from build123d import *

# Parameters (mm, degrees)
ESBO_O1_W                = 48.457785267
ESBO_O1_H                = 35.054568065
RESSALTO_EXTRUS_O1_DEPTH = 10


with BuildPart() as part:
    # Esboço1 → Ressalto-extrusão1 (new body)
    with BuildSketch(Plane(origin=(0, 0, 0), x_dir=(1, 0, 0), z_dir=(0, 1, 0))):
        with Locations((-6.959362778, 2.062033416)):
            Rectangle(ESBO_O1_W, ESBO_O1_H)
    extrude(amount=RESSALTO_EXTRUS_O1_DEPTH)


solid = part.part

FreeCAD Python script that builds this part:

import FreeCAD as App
import Part
import Sketcher

doc = App.newDocument("Part")
body = doc.addObject("PartDesign::Body", "Body")

# Sketch on XZ plane
sketch1 = body.newObject("Sketcher::SketchObject", "Sketch")
sketch1.AttachmentSupport = (doc.getObject("XZ_Plane"), [""])
sketch1.MapMode = "FlatFace"
sketch1.addGeometry(Part.LineSegment(App.Vector(-31, -20, 0), App.Vector(-31, 15, 0)), False)
sketch1.addGeometry(Part.LineSegment(App.Vector(-31, 15, 0), App.Vector(17, 15, 0)), False)
sketch1.addGeometry(Part.LineSegment(App.Vector(17, 15, 0), App.Vector(17, -20, 0)), False)
sketch1.addGeometry(Part.LineSegment(App.Vector(17, -20, 0), App.Vector(-31, -20, 0)), False)
sketch1.addConstraint(Sketcher.Constraint("Coincident", 0, 2, 1, 1))
sketch1.addConstraint(Sketcher.Constraint("Coincident", 1, 2, 2, 1))
sketch1.addConstraint(Sketcher.Constraint("Coincident", 2, 2, 3, 1))
sketch1.addConstraint(Sketcher.Constraint("Coincident", 3, 2, 0, 1))
sketch1.addConstraint(Sketcher.Constraint("Vertical", 0))
sketch1.addConstraint(Sketcher.Constraint("Horizontal", 1))
sketch1.addConstraint(Sketcher.Constraint("Vertical", 2))
sketch1.addConstraint(Sketcher.Constraint("Horizontal", 3))
sketch1.addConstraint(Sketcher.Constraint("DistanceY", 0, 1, 0, 2, 35.054568))
sketch1.addConstraint(Sketcher.Constraint("DistanceX", 1, 1, 1, 2, 48.457785))
sketch1.addConstraint(Sketcher.Constraint("DistanceY", -1, 1, 0, 2, 15.465251))
sketch1.addConstraint(Sketcher.Constraint("DistanceX", -1, 1, 1, 2, 17.26953))
pad1 = body.newObject("PartDesign::Pad", "Pad")
pad1.Profile = sketch1
pad1.Length = 10
pad1.Reversed = True

doc.recompute()
